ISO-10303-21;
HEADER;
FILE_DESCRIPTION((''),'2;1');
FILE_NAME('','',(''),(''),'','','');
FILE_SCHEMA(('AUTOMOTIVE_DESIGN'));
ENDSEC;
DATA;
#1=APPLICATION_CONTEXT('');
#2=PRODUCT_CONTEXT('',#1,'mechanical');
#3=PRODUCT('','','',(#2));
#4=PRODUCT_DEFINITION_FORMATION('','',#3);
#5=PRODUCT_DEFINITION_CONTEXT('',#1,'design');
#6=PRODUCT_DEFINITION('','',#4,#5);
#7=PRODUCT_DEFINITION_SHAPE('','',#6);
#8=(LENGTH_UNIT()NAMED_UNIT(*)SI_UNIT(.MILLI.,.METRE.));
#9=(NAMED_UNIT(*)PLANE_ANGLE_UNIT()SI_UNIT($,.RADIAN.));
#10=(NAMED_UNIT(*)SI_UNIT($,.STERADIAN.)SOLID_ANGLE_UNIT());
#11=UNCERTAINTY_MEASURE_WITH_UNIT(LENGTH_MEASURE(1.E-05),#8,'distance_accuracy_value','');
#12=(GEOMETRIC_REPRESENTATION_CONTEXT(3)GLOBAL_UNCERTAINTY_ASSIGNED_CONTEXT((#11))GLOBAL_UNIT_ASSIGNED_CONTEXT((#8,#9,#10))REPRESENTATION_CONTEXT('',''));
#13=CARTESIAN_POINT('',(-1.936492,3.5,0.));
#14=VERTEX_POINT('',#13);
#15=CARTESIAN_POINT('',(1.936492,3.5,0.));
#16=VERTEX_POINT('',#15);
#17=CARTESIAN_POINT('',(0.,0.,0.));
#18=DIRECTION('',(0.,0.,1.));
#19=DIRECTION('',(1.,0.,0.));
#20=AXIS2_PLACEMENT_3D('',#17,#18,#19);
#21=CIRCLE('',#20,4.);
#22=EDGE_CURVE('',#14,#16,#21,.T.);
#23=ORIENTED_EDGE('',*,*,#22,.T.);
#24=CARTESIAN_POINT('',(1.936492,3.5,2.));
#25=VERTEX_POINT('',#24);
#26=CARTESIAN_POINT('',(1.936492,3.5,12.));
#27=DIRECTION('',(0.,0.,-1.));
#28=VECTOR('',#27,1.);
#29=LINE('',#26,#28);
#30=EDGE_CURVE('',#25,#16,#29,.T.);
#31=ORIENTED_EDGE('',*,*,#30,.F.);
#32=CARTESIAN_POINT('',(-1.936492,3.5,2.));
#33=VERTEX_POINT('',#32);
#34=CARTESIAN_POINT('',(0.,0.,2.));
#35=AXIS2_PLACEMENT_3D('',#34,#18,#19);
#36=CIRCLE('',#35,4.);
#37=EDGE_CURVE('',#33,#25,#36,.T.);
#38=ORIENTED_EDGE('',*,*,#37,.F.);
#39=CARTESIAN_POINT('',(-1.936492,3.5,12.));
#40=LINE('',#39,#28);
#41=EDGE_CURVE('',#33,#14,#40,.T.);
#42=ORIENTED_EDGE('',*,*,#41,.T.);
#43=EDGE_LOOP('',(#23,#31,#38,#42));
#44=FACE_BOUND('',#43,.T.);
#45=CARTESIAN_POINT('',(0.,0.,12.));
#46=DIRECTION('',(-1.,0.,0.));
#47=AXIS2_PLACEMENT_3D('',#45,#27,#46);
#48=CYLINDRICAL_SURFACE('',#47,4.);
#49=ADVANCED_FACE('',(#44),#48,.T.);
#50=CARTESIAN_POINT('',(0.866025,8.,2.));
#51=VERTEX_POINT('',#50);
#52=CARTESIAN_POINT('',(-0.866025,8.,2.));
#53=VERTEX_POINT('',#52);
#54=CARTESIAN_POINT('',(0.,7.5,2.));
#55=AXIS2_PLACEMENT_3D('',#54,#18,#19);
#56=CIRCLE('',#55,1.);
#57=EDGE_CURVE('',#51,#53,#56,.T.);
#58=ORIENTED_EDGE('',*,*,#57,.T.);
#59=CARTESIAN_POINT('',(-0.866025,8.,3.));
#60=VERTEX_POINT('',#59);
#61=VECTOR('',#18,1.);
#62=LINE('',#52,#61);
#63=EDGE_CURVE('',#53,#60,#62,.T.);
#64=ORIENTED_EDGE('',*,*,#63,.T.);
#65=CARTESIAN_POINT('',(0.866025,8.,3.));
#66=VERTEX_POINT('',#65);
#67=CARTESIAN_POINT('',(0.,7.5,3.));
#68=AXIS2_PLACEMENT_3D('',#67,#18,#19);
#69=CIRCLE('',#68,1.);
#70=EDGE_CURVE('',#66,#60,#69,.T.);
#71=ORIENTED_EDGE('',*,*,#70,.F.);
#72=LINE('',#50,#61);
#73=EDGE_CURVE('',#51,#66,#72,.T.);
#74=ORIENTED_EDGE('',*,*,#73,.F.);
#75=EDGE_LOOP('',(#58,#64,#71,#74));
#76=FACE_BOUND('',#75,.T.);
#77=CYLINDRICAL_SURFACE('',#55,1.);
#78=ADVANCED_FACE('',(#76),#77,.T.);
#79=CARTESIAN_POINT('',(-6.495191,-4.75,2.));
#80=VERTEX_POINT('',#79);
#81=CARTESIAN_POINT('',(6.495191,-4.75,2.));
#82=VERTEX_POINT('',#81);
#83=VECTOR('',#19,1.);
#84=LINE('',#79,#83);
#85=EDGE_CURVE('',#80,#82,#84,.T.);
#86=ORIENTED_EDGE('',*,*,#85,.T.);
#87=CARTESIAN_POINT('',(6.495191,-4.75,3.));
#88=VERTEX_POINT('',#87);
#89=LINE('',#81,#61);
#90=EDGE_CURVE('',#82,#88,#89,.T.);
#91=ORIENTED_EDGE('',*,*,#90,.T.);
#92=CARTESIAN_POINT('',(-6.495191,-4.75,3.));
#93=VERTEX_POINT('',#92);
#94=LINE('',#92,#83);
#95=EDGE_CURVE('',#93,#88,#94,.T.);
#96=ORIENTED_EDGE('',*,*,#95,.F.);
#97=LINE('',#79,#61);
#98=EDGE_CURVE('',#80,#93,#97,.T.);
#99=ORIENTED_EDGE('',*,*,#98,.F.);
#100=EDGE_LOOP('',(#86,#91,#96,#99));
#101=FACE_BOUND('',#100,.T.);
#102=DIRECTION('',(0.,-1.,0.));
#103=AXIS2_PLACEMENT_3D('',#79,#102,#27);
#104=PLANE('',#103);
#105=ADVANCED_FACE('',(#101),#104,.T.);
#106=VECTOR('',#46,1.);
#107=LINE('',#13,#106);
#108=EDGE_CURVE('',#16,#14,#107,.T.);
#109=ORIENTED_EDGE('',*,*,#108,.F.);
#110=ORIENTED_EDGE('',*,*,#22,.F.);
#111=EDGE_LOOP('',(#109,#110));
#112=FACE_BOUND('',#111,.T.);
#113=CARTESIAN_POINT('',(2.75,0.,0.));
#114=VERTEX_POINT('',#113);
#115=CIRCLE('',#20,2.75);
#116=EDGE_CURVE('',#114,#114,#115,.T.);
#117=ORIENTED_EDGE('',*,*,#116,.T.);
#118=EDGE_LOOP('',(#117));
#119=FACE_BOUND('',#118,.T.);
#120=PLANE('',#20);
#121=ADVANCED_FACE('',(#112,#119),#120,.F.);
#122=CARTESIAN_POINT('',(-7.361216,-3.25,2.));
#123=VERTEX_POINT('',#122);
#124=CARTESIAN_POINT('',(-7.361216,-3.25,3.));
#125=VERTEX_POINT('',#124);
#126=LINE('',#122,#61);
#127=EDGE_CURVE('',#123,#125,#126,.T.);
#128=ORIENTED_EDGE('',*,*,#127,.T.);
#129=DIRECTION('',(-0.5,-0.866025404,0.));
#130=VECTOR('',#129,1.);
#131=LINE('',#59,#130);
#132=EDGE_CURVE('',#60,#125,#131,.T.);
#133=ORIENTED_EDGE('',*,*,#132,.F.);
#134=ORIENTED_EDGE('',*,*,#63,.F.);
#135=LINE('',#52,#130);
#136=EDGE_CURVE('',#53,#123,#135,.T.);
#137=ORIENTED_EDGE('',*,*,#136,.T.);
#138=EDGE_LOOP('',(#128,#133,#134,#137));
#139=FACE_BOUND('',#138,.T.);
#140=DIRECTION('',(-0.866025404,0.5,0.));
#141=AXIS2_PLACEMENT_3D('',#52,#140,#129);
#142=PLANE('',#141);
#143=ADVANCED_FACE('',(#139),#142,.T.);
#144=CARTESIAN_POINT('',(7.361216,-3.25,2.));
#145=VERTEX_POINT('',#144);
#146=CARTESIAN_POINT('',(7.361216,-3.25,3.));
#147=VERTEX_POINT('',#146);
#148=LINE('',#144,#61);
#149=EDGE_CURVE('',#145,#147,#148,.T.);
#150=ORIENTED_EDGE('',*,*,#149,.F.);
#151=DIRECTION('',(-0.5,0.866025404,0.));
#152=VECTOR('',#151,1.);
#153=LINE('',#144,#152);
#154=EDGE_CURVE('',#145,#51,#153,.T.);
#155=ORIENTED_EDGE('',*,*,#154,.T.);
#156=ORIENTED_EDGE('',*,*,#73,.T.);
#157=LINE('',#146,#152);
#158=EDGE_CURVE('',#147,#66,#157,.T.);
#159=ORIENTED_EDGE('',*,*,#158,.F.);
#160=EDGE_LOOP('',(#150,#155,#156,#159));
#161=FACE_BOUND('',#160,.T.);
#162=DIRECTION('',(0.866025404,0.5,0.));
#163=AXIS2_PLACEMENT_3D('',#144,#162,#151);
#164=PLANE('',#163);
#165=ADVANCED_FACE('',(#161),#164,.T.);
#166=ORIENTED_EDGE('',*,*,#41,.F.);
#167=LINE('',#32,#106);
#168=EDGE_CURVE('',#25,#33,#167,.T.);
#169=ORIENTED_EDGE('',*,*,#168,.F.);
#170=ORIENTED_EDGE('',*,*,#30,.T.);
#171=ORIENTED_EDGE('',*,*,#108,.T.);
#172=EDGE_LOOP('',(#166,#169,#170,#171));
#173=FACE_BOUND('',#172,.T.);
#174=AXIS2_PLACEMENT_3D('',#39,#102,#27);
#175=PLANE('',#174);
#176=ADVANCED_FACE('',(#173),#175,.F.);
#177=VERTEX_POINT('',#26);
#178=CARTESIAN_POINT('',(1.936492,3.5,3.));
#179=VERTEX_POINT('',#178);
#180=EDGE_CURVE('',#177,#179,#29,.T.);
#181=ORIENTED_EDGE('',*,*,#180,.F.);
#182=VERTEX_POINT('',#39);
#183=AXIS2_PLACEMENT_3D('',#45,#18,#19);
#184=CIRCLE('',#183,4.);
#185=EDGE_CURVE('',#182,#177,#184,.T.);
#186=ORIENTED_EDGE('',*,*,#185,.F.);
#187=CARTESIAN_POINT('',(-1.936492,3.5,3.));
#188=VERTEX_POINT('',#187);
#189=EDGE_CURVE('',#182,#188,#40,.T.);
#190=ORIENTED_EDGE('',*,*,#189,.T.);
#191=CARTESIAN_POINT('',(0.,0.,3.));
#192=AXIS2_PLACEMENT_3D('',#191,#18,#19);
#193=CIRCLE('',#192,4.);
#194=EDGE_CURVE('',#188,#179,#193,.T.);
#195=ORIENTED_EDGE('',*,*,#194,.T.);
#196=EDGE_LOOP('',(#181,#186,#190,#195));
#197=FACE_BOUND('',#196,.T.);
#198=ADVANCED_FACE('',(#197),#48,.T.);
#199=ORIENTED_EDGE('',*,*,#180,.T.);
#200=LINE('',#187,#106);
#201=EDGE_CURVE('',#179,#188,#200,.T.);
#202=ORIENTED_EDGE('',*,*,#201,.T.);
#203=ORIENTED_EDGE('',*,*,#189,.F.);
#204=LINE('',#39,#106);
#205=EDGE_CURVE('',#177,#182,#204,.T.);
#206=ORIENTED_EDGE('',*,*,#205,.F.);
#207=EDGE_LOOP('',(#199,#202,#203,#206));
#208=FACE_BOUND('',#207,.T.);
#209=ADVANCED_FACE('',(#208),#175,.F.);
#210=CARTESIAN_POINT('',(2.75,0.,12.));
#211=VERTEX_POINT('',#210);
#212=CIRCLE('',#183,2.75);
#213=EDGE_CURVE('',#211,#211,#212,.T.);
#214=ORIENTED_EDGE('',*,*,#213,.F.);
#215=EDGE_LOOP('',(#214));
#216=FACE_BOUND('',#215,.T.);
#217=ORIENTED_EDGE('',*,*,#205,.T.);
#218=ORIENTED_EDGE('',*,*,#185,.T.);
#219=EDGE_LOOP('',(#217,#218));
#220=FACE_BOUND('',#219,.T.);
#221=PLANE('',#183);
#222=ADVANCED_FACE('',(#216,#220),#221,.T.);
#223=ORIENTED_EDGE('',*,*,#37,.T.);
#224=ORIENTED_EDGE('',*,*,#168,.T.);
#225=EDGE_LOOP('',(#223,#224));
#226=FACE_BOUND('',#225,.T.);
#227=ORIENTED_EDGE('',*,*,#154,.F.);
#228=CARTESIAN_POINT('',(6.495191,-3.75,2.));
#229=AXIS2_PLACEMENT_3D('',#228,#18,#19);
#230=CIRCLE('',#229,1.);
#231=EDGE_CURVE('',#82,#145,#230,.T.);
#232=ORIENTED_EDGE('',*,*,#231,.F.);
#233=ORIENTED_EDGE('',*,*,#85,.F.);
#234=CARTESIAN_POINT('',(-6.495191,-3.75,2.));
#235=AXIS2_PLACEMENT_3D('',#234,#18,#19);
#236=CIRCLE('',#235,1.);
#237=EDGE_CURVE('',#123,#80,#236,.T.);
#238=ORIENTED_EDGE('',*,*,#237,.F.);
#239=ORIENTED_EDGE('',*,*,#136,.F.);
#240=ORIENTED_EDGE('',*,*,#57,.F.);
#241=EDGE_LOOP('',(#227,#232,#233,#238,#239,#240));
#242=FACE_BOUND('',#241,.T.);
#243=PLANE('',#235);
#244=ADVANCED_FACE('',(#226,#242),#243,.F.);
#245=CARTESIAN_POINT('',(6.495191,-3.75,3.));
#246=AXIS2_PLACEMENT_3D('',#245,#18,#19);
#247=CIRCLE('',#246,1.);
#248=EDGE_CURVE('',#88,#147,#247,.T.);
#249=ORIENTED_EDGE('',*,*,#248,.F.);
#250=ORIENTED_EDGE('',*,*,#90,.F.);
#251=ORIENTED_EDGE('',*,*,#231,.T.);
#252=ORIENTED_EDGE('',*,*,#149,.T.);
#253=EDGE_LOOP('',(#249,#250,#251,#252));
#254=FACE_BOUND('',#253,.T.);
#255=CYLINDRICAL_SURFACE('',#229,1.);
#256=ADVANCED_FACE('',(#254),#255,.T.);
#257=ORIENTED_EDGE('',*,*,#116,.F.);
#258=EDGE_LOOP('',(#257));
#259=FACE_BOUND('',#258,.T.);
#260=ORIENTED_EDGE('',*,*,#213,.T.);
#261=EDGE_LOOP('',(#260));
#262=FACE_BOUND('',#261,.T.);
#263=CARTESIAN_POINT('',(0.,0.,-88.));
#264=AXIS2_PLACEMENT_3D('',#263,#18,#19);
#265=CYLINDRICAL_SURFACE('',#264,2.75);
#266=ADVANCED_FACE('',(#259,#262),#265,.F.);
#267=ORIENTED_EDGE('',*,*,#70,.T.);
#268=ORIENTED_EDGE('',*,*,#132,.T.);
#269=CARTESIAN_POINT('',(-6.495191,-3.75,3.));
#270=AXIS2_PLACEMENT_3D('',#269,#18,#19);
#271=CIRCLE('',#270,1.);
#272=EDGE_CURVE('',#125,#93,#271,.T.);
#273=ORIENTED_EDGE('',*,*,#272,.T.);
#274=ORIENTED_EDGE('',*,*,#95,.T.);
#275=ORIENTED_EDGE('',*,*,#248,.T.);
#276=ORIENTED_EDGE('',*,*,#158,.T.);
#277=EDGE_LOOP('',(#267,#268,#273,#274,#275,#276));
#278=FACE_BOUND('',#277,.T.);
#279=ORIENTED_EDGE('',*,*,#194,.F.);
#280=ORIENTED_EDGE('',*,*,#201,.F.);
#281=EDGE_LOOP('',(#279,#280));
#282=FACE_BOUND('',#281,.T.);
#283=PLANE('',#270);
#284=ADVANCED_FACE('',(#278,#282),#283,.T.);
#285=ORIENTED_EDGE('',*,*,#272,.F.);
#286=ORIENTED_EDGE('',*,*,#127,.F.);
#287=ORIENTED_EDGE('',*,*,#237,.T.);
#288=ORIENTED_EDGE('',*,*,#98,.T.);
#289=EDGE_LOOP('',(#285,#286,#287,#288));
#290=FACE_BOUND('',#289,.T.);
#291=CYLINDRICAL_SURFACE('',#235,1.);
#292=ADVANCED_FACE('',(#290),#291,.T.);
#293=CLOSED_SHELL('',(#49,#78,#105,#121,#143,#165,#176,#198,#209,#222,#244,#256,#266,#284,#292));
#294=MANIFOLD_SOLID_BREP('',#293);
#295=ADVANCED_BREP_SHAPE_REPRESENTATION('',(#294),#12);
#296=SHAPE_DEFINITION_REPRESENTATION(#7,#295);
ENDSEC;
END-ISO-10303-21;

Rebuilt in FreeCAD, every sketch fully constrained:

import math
import FreeCAD as App
import Part
import Sketcher
Q = App.Units.Quantity

doc = App.newDocument("Part")
body = doc.addObject("PartDesign::Body", "Body")

sketch1 = body.newObject("Sketcher::SketchObject", "Sketch")
sketch1.AttachmentSupport = (doc.getObject("XY_Plane"), [""])
sketch1.MapMode = "FlatFace"
sketch1.addGeometry(Part.LineSegment(App.Vector(1.936492, 3.5, 0), App.Vector(-1.936492, 3.5, 0)), False)
sketch1.addGeometry(Part.ArcOfCircle(Part.Circle(App.Vector(0, 0, 0), App.Vector(0, 0, 1), 4), math.radians(118.955024), math.radians(421.044976)), False)
sketch1.addConstraint(Sketcher.Constraint("Coincident", 0, 1, 1, 2))
sketch1.addConstraint(Sketcher.Constraint("Coincident", 1, 1, 0, 2))
sketch1.addConstraint(Sketcher.Constraint("Horizontal", 0))
sketch1.addConstraint(Sketcher.Constraint("Coincident", 1, 3, -1, 1))
sketch1.addConstraint(Sketcher.Constraint("Radius", 1, 4.0))
sketch1.addConstraint(Sketcher.Constraint("DistanceY", -1, 1, 0, 1, 3.5))
pad1 = body.newObject("PartDesign::Pad", "Pad")
pad1.Profile = sketch1
pad1.Length = 12

sketch2 = body.newObject("Sketcher::SketchObject", "Sketch001")
sketch2.AttachmentSupport = (doc.getObject("XY_Plane"), [""])
sketch2.MapMode = "FlatFace"
sketch2.AttachmentOffset = App.Placement(App.Vector(0, 0, 3), App.Rotation())
sketch2.addGeometry(Part.LineSegment(App.Vector(-6.495191, -4.75, 0), App.Vector(6.495191, -4.75, 0)), False)
sketch2.addGeometry(Part.ArcOfCircle(Part.Circle(App.Vector(6.495191, -3.75, 0), App.Vector(0, 0, 1), 1), math.radians(-90), math.radians(30)), False)
sketch2.addGeometry(Part.LineSegment(App.Vector(7.361216, -3.25, 0), App.Vector(0.866025, 8, 0)), False)
sketch2.addGeometry(Part.ArcOfCircle(Part.Circle(App.Vector(0, 7.5, 0), App.Vector(0, 0, 1), 1), math.radians(30), math.radians(150)), False)
sketch2.addGeometry(Part.LineSegment(App.Vector(-0.866025, 8, 0), App.Vector(-7.361216, -3.25, 0)), False)
sketch2.addGeometry(Part.ArcOfCircle(Part.Circle(App.Vector(-6.495191, -3.75, 0), App.Vector(0, 0, 1), 1), math.radians(150), math.radians(270)), False)
sketch2.addConstraint(Sketcher.Constraint("Tangent", 0, 2, 1, 1))
sketch2.addConstraint(Sketcher.Constraint("Tangent", 1, 2, 2, 1))
sketch2.addConstraint(Sketcher.Constraint("Tangent", 2, 2, 3, 1))
sketch2.addConstraint(Sketcher.Constraint("Tangent", 3, 2, 4, 1))
sketch2.addConstraint(Sketcher.Constraint("Tangent", 4, 2, 5, 1))
sketch2.addConstraint(Sketcher.Constraint("Tangent", 5, 2, 0, 1))
sketch2.addConstraint(Sketcher.Constraint("Horizontal", 0))
sketch2.addConstraint(Sketcher.Constraint("Equal", 1, 3))
sketch2.addConstraint(Sketcher.Constraint("Equal", 3, 5))
sketch2.addConstraint(Sketcher.Constraint("Symmetric", 2, 2, 3, 2, -2))
sketch2.addConstraint(Sketcher.Constraint("Radius", 1, 1.0))
sketch2.addConstraint(Sketcher.Constraint("Angle", 2, Q("120 deg")))
sketch2.addConstraint(Sketcher.Constraint("DistanceY", -1, 1, 2, 2, 8.0))
sketch2.addConstraint(Sketcher.Constraint("DistanceY", 1, 3, -1, 1, 3.75))
pad2 = body.newObject("PartDesign::Pad", "Pad001")
pad2.Profile = sketch2
pad2.Length = 1
pad2.Reversed = True

sketch3 = body.newObject("Sketcher::SketchObject", "Sketch002")
sketch3.AttachmentSupport = (doc.getObject("XY_Plane"), [""])
sketch3.MapMode = "FlatFace"
sketch3.AttachmentOffset = App.Placement(App.Vector(0, 0, 12), App.Rotation())
sketch3.addGeometry(Part.Circle(App.Vector(0, 0, 0), App.Vector(0, 0, 1), 2.75), False)
sketch3.addConstraint(Sketcher.Constraint("Coincident", 0, 3, -1, 1))
sketch3.addConstraint(Sketcher.Constraint("Diameter", 0, 5.5))
pocket1 = body.newObject("PartDesign::Pocket", "Pocket")
pocket1.Profile = sketch3
pocket1.Length = 100

doc.recompute()
